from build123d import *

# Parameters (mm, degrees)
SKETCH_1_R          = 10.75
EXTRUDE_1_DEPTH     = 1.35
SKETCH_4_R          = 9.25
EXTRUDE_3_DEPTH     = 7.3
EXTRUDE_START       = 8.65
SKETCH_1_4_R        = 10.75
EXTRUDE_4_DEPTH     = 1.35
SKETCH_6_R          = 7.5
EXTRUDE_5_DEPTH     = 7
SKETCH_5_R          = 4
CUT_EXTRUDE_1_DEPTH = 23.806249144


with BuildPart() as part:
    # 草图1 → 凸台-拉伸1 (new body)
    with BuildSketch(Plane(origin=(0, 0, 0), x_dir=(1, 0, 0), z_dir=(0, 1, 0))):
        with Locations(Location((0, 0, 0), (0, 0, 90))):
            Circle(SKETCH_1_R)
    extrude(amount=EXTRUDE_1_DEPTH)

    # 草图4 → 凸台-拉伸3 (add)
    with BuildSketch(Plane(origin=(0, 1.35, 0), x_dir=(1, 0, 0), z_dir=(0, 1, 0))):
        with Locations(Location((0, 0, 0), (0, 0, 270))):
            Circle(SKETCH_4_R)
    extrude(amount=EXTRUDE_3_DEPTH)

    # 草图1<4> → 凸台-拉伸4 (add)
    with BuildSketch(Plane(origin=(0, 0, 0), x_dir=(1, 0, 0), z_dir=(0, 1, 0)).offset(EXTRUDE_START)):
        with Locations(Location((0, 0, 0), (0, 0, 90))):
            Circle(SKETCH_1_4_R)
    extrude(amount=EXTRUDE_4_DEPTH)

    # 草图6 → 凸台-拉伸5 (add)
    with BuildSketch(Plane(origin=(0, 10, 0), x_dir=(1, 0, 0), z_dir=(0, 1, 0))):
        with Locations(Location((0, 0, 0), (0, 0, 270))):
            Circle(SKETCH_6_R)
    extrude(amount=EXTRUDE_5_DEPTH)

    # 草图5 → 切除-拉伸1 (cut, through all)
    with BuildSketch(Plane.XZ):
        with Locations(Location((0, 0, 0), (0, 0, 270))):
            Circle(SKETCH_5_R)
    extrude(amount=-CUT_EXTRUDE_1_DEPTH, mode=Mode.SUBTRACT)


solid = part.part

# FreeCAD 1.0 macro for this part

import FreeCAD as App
import Part
import Sketcher

doc = App.newDocument("Part")
body = doc.addObject("PartDesign::Body", "Body")

# Sketch on XZ plane
sketch1 = doc.addObject("Sketcher::SketchObject", "Sketch")
body.addObject(sketch1)
sketch1.AttachmentSupport = (doc.XZ_Plane, [""])
sketch1.MapMode = "FlatFace"
sketch1.addGeometry(Part.Circle(App.Vector(0, 0, 0), App.Vector(0, 0, 1), 11), False)
sketch1.addConstraint([
    Sketcher.Constraint("Coincident", 0, 3, -1, 1),
    Sketcher.Constraint("Diameter", 0, 21.5),
])
pad1 = doc.addObject("PartDesign::Pad", "Pad")
body.addObject(pad1)
pad1.Profile = sketch1
pad1.Length = 1.35
pad1.Reversed = True

# Sketch on XZ plane
sketch2 = doc.addObject("Sketcher::SketchObject", "Sketch001")
body.addObject(sketch2)
sketch2.AttachmentSupport = (doc.XZ_Plane, [""])
sketch2.MapMode = "FlatFace"
sketch2.AttachmentOffset = App.Placement(App.Vector(0, 0, -1.35), App.Rotation())
sketch2.addGeometry(Part.Circle(App.Vector(0, 0, 0), App.Vector(0, 0, 1), 9), False)
sketch2.addConstraint([
    Sketcher.Constraint("Coincident", 0, 3, -1, 1),
    Sketcher.Constraint("Diameter", 0, 18.5),
])
pad2 = doc.addObject("PartDesign::Pad", "Pad001")
body.addObject(pad2)
pad2.Profile = sketch2
pad2.Length = 7.3
pad2.Reversed = True

# Sketch on XZ plane
sketch3 = doc.addObject("Sketcher::SketchObject", "Sketch002")
body.addObject(sketch3)
sketch3.AttachmentSupport = (doc.XZ_Plane, [""])
sketch3.MapMode = "FlatFace"
sketch3.AttachmentOffset = App.Placement(App.Vector(0, 0, -8.65), App.Rotation())
sketch3.addGeometry(Part.Circle(App.Vector(0, 0, 0), App.Vector(0, 0, 1), 11), False)
sketch3.addConstraint([
    Sketcher.Constraint("Coincident", 0, 3, -1, 1),
    Sketcher.Constraint("Diameter", 0, 21.5),
])
pad3 = doc.addObject("PartDesign::Pad", "Pad002")
body.addObject(pad3)
pad3.Profile = sketch3
pad3.Length = 1.35
pad3.Reversed = True

# Sketch on XZ plane
sketch4 = doc.addObject("Sketcher::SketchObject", "Sketch003")
body.addObject(sketch4)
sketch4.AttachmentSupport = (doc.XZ_Plane, [""])
sketch4.MapMode = "FlatFace"
sketch4.AttachmentOffset = App.Placement(App.Vector(0, 0, -10), App.Rotation())
sketch4.addGeometry(Part.Circle(App.Vector(0, 0, 0), App.Vector(0, 0, 1), 8), False)
sketch4.addConstraint([
    Sketcher.Constraint("Coincident", 0, 3, -1, 1),
    Sketcher.Constraint("Diameter", 0, 15.0),
])
pad4 = doc.addObject("PartDesign::Pad", "Pad003")
body.addObject(pad4)
pad4.Profile = sketch4
pad4.Length = 7
pad4.Reversed = True

# Sketch on XZ plane
sketch5 = doc.addObject("Sketcher::SketchObject", "Sketch004")
body.addObject(sketch5)
sketch5.AttachmentSupport = (doc.XZ_Plane, [""])
sketch5.MapMode = "FlatFace"
sketch5.addGeometry(Part.Circle(App.Vector(0, 0, 0), App.Vector(0, 0, 1), 4), False)
sketch5.addConstraint([
    Sketcher.Constraint("Coincident", 0, 3, -1, 1),
    Sketcher.Constraint("Diameter", 0, 8.0),
])
pocket1 = doc.addObject("PartDesign::Pocket", "Pocket")
body.addObject(pocket1)
pocket1.Profile = sketch5
pocket1.Type = "ThroughAll"

doc.recompute()
